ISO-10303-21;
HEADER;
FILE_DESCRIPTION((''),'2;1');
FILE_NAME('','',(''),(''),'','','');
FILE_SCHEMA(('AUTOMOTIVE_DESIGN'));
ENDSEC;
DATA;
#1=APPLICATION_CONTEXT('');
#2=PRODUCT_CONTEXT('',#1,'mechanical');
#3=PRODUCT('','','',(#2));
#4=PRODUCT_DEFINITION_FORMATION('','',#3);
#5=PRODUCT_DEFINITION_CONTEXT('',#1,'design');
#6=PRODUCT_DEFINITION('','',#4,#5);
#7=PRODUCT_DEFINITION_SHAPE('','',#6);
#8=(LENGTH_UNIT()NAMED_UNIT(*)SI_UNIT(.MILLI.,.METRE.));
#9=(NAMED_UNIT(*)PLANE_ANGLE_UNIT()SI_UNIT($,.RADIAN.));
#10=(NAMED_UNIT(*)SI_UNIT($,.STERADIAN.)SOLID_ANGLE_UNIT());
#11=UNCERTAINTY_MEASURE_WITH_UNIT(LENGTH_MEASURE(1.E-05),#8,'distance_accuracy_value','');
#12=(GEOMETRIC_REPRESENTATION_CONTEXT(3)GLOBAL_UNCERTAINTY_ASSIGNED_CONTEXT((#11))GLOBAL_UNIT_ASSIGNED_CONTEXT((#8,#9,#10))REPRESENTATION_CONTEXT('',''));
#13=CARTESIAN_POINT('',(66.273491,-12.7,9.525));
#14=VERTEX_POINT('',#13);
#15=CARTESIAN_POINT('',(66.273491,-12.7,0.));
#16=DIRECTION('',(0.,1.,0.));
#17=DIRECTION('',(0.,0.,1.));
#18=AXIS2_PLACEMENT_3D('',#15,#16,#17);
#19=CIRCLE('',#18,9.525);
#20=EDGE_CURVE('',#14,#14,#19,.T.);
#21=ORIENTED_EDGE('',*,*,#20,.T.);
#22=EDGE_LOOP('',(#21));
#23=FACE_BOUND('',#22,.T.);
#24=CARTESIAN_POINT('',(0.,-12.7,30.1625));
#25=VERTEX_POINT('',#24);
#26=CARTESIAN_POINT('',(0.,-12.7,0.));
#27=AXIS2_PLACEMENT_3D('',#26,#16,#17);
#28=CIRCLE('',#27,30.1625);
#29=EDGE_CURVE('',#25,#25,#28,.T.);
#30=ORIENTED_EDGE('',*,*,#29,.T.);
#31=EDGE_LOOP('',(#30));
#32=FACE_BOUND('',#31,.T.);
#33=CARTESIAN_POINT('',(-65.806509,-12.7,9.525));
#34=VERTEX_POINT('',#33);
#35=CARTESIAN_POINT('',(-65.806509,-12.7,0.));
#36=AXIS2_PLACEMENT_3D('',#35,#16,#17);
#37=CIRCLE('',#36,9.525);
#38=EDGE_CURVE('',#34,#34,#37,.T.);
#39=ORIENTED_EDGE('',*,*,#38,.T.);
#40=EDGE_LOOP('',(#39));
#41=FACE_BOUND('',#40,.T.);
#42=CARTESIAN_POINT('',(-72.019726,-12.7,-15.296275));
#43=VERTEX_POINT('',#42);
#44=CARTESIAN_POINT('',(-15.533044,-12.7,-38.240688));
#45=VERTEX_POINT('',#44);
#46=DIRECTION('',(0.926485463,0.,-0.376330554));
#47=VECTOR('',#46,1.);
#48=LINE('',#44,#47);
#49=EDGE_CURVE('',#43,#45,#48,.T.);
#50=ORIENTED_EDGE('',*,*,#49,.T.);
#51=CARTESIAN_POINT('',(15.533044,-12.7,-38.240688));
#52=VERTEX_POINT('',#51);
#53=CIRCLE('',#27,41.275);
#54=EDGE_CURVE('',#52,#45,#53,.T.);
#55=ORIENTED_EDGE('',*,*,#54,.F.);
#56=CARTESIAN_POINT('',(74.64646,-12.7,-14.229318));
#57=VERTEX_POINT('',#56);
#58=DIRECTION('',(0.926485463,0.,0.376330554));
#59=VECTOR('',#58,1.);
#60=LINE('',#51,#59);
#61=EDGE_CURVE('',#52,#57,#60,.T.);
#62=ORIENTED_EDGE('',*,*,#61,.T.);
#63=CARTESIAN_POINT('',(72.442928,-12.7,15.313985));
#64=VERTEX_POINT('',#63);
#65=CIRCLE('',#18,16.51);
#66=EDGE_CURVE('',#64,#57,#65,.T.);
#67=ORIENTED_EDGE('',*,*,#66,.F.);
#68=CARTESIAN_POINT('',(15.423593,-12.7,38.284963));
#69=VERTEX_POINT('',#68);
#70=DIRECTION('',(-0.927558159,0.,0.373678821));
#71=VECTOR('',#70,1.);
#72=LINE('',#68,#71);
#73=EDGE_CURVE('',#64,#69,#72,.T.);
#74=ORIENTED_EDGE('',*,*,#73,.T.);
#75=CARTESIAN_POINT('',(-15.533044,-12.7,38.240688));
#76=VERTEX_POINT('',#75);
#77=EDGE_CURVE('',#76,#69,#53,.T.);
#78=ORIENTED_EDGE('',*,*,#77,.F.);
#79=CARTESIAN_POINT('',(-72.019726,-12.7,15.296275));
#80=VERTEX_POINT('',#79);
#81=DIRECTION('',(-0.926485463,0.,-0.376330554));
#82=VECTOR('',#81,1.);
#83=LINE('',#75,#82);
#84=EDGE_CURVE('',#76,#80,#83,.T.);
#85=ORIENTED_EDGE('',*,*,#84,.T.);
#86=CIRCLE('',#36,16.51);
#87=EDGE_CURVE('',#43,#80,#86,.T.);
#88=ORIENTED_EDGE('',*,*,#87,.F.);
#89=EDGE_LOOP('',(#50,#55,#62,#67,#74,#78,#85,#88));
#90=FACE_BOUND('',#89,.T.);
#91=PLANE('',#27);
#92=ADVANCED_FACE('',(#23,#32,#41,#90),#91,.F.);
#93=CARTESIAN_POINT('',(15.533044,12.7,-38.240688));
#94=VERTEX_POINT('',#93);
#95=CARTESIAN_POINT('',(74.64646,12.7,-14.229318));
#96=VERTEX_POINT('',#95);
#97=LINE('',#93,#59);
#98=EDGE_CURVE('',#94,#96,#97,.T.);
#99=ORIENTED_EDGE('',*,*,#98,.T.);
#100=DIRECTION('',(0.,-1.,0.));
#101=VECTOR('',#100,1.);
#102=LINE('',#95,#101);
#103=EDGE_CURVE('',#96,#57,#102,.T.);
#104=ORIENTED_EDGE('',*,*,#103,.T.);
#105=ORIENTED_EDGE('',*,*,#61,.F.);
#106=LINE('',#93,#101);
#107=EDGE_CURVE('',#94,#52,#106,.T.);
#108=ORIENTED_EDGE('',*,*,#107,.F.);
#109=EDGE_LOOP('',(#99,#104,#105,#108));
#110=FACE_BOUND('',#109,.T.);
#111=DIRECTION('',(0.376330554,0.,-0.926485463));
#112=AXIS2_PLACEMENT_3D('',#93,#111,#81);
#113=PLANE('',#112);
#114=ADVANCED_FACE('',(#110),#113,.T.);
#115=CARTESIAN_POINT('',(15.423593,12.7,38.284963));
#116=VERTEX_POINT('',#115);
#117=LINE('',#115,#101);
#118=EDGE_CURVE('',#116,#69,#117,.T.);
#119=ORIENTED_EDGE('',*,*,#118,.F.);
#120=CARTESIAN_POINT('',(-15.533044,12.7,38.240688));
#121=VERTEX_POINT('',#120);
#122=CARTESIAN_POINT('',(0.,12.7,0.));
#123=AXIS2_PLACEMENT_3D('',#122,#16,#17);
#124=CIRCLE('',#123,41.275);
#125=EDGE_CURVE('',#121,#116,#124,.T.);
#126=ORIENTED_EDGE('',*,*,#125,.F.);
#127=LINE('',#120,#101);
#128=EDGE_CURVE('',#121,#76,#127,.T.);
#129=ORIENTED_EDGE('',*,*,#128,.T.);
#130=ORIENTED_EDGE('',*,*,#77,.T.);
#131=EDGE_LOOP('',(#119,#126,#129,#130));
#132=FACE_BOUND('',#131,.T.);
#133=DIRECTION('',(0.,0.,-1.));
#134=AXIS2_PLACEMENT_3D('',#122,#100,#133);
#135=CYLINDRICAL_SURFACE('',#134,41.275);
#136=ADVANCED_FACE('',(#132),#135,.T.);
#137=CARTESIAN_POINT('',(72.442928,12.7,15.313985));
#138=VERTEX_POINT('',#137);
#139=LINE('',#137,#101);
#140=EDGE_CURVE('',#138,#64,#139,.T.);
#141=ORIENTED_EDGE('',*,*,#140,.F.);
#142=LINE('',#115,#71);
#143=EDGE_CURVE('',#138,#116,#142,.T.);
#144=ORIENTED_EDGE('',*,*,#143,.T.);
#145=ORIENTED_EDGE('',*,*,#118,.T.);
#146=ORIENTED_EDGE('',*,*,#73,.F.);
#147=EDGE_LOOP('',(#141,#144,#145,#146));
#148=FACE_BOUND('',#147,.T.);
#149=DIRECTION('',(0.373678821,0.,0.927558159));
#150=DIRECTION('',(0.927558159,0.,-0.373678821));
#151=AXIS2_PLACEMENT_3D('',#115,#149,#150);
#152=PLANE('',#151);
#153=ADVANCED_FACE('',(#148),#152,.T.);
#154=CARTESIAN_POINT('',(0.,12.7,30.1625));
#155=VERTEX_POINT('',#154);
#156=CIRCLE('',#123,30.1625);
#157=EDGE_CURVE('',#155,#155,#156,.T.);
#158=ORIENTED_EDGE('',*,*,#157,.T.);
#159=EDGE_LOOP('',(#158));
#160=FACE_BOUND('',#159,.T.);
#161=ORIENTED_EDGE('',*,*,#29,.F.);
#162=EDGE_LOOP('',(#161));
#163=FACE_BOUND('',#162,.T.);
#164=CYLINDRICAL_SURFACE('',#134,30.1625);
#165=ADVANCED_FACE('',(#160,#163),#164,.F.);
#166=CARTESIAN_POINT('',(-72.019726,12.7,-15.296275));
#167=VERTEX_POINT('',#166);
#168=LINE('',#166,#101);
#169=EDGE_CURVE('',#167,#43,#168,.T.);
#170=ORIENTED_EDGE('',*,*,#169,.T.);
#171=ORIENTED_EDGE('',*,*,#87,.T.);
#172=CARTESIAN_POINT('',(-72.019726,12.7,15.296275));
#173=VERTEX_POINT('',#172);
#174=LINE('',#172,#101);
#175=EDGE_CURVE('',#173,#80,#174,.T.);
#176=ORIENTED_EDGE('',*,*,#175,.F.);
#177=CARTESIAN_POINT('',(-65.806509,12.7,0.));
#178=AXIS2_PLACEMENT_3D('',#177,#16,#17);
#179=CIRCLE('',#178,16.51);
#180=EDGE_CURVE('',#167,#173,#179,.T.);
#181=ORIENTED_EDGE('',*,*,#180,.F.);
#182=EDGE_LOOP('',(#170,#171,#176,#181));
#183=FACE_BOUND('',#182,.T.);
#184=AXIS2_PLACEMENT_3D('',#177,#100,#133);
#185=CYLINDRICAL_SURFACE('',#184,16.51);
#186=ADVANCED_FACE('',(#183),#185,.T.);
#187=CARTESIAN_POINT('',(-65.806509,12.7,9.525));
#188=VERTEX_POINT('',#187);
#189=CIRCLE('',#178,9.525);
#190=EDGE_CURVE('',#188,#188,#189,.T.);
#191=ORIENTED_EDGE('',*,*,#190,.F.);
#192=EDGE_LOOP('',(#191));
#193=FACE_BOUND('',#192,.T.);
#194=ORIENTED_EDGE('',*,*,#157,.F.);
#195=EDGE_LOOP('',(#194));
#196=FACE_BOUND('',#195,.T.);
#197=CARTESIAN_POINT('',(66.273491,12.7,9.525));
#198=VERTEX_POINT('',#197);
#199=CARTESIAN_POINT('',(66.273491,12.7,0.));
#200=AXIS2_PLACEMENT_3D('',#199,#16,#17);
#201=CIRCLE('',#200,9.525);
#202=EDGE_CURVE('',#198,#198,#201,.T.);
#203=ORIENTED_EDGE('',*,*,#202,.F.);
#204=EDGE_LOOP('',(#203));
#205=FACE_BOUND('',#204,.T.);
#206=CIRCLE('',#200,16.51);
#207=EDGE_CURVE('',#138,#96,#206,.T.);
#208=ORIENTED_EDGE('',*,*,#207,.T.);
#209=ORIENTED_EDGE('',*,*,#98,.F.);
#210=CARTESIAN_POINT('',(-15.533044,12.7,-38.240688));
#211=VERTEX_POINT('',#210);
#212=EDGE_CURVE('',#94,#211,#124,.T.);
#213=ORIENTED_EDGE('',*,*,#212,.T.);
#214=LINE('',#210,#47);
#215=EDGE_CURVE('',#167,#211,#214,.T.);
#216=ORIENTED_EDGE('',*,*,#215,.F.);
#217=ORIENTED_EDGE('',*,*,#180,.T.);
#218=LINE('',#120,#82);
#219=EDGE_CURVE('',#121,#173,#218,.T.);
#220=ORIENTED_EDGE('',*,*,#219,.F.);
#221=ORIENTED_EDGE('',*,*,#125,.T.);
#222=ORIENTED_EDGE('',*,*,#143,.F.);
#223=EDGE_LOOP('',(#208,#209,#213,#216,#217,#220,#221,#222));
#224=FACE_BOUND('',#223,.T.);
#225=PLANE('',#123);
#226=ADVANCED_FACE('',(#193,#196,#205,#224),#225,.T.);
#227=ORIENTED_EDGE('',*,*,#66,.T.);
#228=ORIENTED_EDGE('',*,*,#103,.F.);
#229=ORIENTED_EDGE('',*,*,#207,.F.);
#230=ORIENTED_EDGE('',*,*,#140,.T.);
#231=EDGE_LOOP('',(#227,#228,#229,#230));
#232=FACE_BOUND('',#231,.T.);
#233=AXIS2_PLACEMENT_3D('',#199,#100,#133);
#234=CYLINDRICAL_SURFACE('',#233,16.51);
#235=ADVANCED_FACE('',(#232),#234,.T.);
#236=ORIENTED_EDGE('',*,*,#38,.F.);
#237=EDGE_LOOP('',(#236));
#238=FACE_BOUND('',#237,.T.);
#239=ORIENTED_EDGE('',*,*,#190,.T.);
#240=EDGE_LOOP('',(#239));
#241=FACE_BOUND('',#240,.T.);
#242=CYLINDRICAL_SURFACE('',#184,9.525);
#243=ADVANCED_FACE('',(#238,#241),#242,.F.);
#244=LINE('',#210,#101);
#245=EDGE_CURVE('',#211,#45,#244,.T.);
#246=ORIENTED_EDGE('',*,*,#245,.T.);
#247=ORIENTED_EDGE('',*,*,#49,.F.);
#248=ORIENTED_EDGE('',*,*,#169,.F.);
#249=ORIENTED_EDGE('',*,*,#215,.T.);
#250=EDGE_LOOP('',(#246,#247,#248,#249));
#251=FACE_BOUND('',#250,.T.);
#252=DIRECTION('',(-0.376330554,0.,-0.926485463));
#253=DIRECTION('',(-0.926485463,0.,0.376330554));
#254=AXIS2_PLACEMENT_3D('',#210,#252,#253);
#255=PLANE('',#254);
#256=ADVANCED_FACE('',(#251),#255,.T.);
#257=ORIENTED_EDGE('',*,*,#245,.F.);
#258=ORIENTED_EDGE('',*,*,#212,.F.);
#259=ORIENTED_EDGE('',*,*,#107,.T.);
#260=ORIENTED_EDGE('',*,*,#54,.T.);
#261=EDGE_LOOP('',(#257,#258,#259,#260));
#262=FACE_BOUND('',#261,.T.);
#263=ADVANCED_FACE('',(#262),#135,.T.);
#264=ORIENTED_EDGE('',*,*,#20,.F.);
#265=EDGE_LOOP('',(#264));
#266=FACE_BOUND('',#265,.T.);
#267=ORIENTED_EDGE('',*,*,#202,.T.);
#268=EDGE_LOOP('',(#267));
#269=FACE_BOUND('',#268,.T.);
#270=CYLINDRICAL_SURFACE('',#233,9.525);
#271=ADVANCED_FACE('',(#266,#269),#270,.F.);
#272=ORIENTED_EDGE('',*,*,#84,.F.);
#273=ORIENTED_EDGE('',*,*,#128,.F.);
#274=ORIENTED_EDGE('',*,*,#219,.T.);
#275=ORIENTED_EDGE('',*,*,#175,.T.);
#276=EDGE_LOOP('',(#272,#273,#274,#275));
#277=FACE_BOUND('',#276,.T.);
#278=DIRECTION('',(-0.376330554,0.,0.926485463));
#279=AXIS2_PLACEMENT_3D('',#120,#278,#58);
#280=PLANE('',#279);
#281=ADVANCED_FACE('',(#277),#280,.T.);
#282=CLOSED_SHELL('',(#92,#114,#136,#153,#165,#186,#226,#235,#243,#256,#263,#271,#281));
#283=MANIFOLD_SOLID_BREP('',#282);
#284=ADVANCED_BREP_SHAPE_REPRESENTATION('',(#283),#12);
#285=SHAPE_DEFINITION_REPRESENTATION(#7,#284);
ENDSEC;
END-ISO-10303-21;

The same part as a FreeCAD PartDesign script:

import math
import FreeCAD as App
import Part
import Sketcher
from FreeCAD import Vector
Q = App.Units.Quantity

doc = App.newDocument("Part")
body = doc.addObject("PartDesign::Body", "Body")

# Sketch on XZ plane
sketch1 = doc.addObject("Sketcher::SketchObject", "Sketch")
body.addObject(sketch1)
sketch1.AttachmentSupport = (doc.XZ_Plane, [""])
sketch1.MapMode = "FlatFace"
sketch1.addGeometry([
    Part.LineSegment(Vector(-15.5, -38.2, 0), Vector(-72, -15.3, 0)),  # 0
    Part.ArcOfCircle(Part.Circle(Vector(-65.8, 0, 0), Vector(0, 0, 1), 16.5), math.radians(112), math.radians(248)),  # 1
    Part.LineSegment(Vector(-72, 15.3, 0), Vector(-15.5, 38.2, 0)),  # 2
    Part.ArcOfCircle(Part.Circle(Vector(0, 0, 0), Vector(0, 0, 1), 41.3), math.radians(68), math.radians(112)),  # 3
    Part.LineSegment(Vector(15.4, 38.3, 0), Vector(72.4, 15.3, 0)),  # 4
    Part.ArcOfCircle(Part.Circle(Vector(66.3, 0, 0), Vector(0, 0, 1), 16.5), math.radians(-60), math.radians(68)),  # 5
    Part.LineSegment(Vector(74.6, -14.2, 0), Vector(70.2, -16, 0)),  # 6
    Part.LineSegment(Vector(70.2, -16, 0), Vector(15.5, -38.2, 0)),  # 7
    Part.ArcOfCircle(Part.Circle(Vector(0, 0, 0), Vector(0, 0, 1), 41.3), math.radians(-112), math.radians(-68)),  # 8
    Part.Circle(Vector(-65.8, 0, 0), Vector(0, 0, 1), 9.5),  # 9
    Part.Circle(Vector(0, 0, 0), Vector(0, 0, 1), 30.2),  # 10
    Part.Circle(Vector(66.3, 0, 0), Vector(0, 0, 1), 9.5),  # 11
], False)
sketch1.addConstraint([
    Sketcher.Constraint("Tangent", 0, 2, 1, 2),
    Sketcher.Constraint("Tangent", 1, 1, 2, 1),
    Sketcher.Constraint("Tangent", 2, 2, 3, 2),
    Sketcher.Constraint("Tangent", 3, 1, 4, 1),
    Sketcher.Constraint("Tangent", 4, 2, 5, 2),
    Sketcher.Constraint("Coincident", 5, 1, 6, 1),
    Sketcher.Constraint("Coincident", 6, 2, 7, 1),
    Sketcher.Constraint("Tangent", 7, 2, 8, 2),
    Sketcher.Constraint("Tangent", 8, 1, 0, 1),
    Sketcher.Constraint("Coincident", 3, 3, -1, 1),
    Sketcher.Constraint("Coincident", 8, 3, -1, 1),
    Sketcher.Constraint("Coincident", 10, 3, -1, 1),
    Sketcher.Constraint("Coincident", 9, 3, 1, 3),
    Sketcher.Constraint("Coincident", 11, 3, 5, 3),
    Sketcher.Constraint("Equal", 1, 5),
    Sketcher.Constraint("Equal", 3, 8),
    Sketcher.Constraint("Equal", 9, 11),
    Sketcher.Constraint("PointOnObject", 1, 3, -1),
    Sketcher.Constraint("PointOnObject", 5, 3, -1),
    Sketcher.Constraint("Parallel", 2, 6),
    Sketcher.Constraint("Parallel", 6, 7),
    Sketcher.Constraint("Diameter", 9, Q("0.75 in")),
    Sketcher.Constraint("Radius", 1, Q("0.65 in")),
    Sketcher.Constraint("Diameter", 10, Q("2.375 in")),
    Sketcher.Constraint("Radius", 3, Q("1.625 in")),
    Sketcher.Constraint("DistanceX", 1, 3, 5, 3, Q("5.2 in")),
    Sketcher.Constraint("Distance", 7, 58.998919),
    Sketcher.Constraint("DistanceX", 1, 3, -1, 1, 65.806509),
])
pad1 = doc.addObject("PartDesign::Pad", "Pad")
body.addObject(pad1)
pad1.Profile = sketch1
pad1.Length = Q("1 in")
pad1.Midplane = True

doc.recompute()
